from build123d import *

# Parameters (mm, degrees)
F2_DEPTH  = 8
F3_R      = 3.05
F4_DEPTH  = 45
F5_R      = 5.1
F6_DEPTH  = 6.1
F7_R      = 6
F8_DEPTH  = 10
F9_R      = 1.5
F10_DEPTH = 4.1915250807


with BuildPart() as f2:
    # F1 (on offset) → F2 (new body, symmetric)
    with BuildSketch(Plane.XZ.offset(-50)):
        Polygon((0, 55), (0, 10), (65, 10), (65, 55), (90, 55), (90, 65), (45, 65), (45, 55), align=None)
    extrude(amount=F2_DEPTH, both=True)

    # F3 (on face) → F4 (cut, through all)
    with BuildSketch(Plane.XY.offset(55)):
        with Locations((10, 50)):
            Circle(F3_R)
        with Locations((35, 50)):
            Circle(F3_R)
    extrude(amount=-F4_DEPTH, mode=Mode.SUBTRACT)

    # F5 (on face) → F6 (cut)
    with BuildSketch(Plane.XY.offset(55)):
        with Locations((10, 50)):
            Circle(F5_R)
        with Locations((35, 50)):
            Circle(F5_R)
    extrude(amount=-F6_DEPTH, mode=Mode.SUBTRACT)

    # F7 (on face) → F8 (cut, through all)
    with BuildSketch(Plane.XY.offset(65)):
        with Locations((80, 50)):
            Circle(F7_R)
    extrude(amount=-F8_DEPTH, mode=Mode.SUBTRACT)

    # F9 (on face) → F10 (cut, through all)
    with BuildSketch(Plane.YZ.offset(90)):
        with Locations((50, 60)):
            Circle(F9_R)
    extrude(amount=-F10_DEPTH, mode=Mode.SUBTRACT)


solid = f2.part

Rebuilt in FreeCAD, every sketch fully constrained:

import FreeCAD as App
import Part
import Sketcher
from FreeCAD import Vector
Q = App.Units.Quantity


def add_polygon(sketch, points):
    """Adds a closed chain of lines whose ends are joined by coincident constraints."""
    first, n = sketch.GeometryCount, len(points)
    for a, b in zip(points, points[1:] + points[:1]):
        sketch.addGeometry(Part.LineSegment(App.Vector(*a, 0), App.Vector(*b, 0)), False)
    for i in range(n):
        sketch.addConstraint(Sketcher.Constraint("Coincident", first + i, 2, first + (i + 1) % n, 1))

doc = App.newDocument("Part")
params = doc.addObject("Spreadsheet::Sheet", "Params")
for row, (alias, value) in enumerate([
    ("sketch1_width", "65 mm"),
    ("sketch1_width2", "25 mm"),
    ("sketch1_height", "10 mm"),
    ("pad1_length", "16 mm"),
    ("sketch2_diameter", "6.1 mm"),
    ("sketch3_diameter", "10.2 mm"),
    ("pocket2_length", "6.1 mm"),
    ("sketch4_diameter", "12 mm"),
    ("sketch5_diameter", "3 mm"),
    ("pocket4_length", "4.191525 mm"),
], start=1):
    params.set(f"A{row}", alias)
    params.set(f"B{row}", "=" + value)
    params.setAlias(f"B{row}", alias)

body = doc.addObject("PartDesign::Body", "Body")

sketch1 = doc.addObject("Sketcher::SketchObject", "Sketch")
body.addObject(sketch1)
sketch1.AttachmentSupport = (doc.XZ_Plane, [""])
sketch1.MapMode = "FlatFace"
sketch1.AttachmentOffset = App.Placement(Vector(0, 0, -50), App.Rotation())
add_polygon(sketch1, [(0, 55), (0, 10), (65, 10), (65, 55), (90, 55), (90, 65), (45, 65), (45, 55)])
sketch1.addConstraint(Sketcher.Constraint("Vertical", 0))
sketch1.addConstraint(Sketcher.Constraint("Horizontal", 1))
sketch1.addConstraint(Sketcher.Constraint("Vertical", 2))
sketch1.addConstraint(Sketcher.Constraint("Horizontal", 3))
sketch1.addConstraint(Sketcher.Constraint("Vertical", 4))
sketch1.addConstraint(Sketcher.Constraint("Horizontal", 5))
sketch1.addConstraint(Sketcher.Constraint("Vertical", 6))
sketch1.addConstraint(Sketcher.Constraint("Horizontal", 7))
sketch1.addConstraint(Sketcher.Constraint("PointOnObject", 0, 2, -2))
sketch1.addConstraint(Sketcher.Constraint("Horizontal", 3, 2, 6, 2))
sketch1.addConstraint(Sketcher.Constraint("Equal", 5, 7))
sketch1.addConstraint(Sketcher.Constraint("Equal", 7, 0))
sketch1.addConstraint(Sketcher.Constraint("DistanceX", 1, 1, 1, 2, Q("65 mm")))
sketch1.addConstraint(Sketcher.Constraint("DistanceX", 3, 1, 3, 2, Q("25 mm")))
sketch1.addConstraint(Sketcher.Constraint("DistanceY", 4, 1, 4, 2, Q("10 mm")))
sketch1.addConstraint(Sketcher.Constraint("DistanceY", -1, 1, 0, 2, Q("10 mm")))
sketch1.setExpression("Constraints[20]", "Params.sketch1_width")
sketch1.setExpression("Constraints[21]", "Params.sketch1_width2")
sketch1.setExpression("Constraints[22]", "Params.sketch1_height")
pad1 = doc.addObject("PartDesign::Pad", "Pad")
body.addObject(pad1)
pad1.Profile = sketch1
pad1.setExpression("Length", "Params.pad1_length")
pad1.Midplane = True

sketch2 = doc.addObject("Sketcher::SketchObject", "Sketch001")
body.addObject(sketch2)
sketch2.AttachmentSupport = (doc.XY_Plane, [""])
sketch2.MapMode = "FlatFace"
sketch2.AttachmentOffset = App.Placement(Vector(0, 0, 55), App.Rotation())
sketch2.addGeometry(Part.Circle(Vector(10, 50, 0), Vector(0, 0, 1), 3), False)
sketch2.addGeometry(Part.Circle(Vector(35, 50, 0), Vector(0, 0, 1), 3), False)
sketch2.addConstraint(Sketcher.Constraint("Equal", 0, 1))
sketch2.addConstraint(Sketcher.Constraint("Horizontal", 0, 3, 1, 3))
sketch2.addConstraint(Sketcher.Constraint("Diameter", 0, Q("6.1 mm")))
sketch2.addConstraint(Sketcher.Constraint("DistanceX", -1, 1, 0, 3, Q("10 mm")))
sketch2.addConstraint(Sketcher.Constraint("DistanceY", -1, 1, 0, 3, Q("50 mm")))
sketch2.addConstraint(Sketcher.Constraint("DistanceX", -1, 1, 1, 3, Q("35 mm")))
sketch2.setExpression("Constraints[2]", "Params.sketch2_diameter")
pocket1 = doc.addObject("PartDesign::Pocket", "Pocket")
body.addObject(pocket1)
pocket1.Profile = sketch2
pocket1.Type = "ThroughAll"

sketch3 = doc.addObject("Sketcher::SketchObject", "Sketch002")
body.addObject(sketch3)
sketch3.AttachmentSupport = (doc.XY_Plane, [""])
sketch3.MapMode = "FlatFace"
sketch3.AttachmentOffset = App.Placement(Vector(0, 0, 55), App.Rotation())
sketch3.addGeometry(Part.Circle(Vector(10, 50, 0), Vector(0, 0, 1), 5), False)
sketch3.addGeometry(Part.Circle(Vector(35, 50, 0), Vector(0, 0, 1), 5), False)
sketch3.addConstraint(Sketcher.Constraint("Equal", 0, 1))
sketch3.addConstraint(Sketcher.Constraint("Horizontal", 0, 3, 1, 3))
sketch3.addConstraint(Sketcher.Constraint("Diameter", 0, Q("10.2 mm")))
sketch3.addConstraint(Sketcher.Constraint("DistanceX", -1, 1, 0, 3, Q("10 mm")))
sketch3.addConstraint(Sketcher.Constraint("DistanceY", -1, 1, 0, 3, Q("50 mm")))
sketch3.addConstraint(Sketcher.Constraint("DistanceX", -1, 1, 1, 3, Q("35 mm")))
sketch3.setExpression("Constraints[2]", "Params.sketch3_diameter")
pocket2 = doc.addObject("PartDesign::Pocket", "Pocket001")
body.addObject(pocket2)
pocket2.Profile = sketch3
pocket2.setExpression("Length", "Params.pocket2_length")

sketch4 = doc.addObject("Sketcher::SketchObject", "Sketch003")
body.addObject(sketch4)
sketch4.AttachmentSupport = (doc.XY_Plane, [""])
sketch4.MapMode = "FlatFace"
sketch4.AttachmentOffset = App.Placement(Vector(0, 0, 65), App.Rotation())
sketch4.addGeometry(Part.Circle(Vector(80, 50, 0), Vector(0, 0, 1), 6), False)
sketch4.addConstraint(Sketcher.Constraint("Diameter", 0, Q("12 mm")))
sketch4.addConstraint(Sketcher.Constraint("DistanceX", -1, 1, 0, 3, Q("80 mm")))
sketch4.addConstraint(Sketcher.Constraint("DistanceY", -1, 1, 0, 3, Q("50 mm")))
sketch4.setExpression("Constraints[0]", "Params.sketch4_diameter")
pocket3 = doc.addObject("PartDesign::Pocket", "Pocket002")
body.addObject(pocket3)
pocket3.Profile = sketch4
pocket3.Type = "ThroughAll"

sketch5 = doc.addObject("Sketcher::SketchObject", "Sketch004")
body.addObject(sketch5)
sketch5.AttachmentSupport = (doc.YZ_Plane, [""])
sketch5.MapMode = "FlatFace"
sketch5.AttachmentOffset = App.Placement(Vector(0, 0, 90), App.Rotation())
sketch5.addGeometry(Part.Circle(Vector(50, 60, 0), Vector(0, 0, 1), 1.5), False)
sketch5.addConstraint(Sketcher.Constraint("Diameter", 0, Q("3 mm")))
sketch5.addConstraint(Sketcher.Constraint("DistanceX", -1, 1, 0, 3, Q("50 mm")))
sketch5.addConstraint(Sketcher.Constraint("DistanceY", -1, 1, 0, 3, Q("60 mm")))
sketch5.setExpression("Constraints[0]", "Params.sketch5_diameter")
pocket4 = doc.addObject("PartDesign::Pocket", "Pocket003")
body.addObject(pocket4)
pocket4.Profile = sketch5
pocket4.setExpression("Length", "Params.pocket4_length")

doc.recompute()
